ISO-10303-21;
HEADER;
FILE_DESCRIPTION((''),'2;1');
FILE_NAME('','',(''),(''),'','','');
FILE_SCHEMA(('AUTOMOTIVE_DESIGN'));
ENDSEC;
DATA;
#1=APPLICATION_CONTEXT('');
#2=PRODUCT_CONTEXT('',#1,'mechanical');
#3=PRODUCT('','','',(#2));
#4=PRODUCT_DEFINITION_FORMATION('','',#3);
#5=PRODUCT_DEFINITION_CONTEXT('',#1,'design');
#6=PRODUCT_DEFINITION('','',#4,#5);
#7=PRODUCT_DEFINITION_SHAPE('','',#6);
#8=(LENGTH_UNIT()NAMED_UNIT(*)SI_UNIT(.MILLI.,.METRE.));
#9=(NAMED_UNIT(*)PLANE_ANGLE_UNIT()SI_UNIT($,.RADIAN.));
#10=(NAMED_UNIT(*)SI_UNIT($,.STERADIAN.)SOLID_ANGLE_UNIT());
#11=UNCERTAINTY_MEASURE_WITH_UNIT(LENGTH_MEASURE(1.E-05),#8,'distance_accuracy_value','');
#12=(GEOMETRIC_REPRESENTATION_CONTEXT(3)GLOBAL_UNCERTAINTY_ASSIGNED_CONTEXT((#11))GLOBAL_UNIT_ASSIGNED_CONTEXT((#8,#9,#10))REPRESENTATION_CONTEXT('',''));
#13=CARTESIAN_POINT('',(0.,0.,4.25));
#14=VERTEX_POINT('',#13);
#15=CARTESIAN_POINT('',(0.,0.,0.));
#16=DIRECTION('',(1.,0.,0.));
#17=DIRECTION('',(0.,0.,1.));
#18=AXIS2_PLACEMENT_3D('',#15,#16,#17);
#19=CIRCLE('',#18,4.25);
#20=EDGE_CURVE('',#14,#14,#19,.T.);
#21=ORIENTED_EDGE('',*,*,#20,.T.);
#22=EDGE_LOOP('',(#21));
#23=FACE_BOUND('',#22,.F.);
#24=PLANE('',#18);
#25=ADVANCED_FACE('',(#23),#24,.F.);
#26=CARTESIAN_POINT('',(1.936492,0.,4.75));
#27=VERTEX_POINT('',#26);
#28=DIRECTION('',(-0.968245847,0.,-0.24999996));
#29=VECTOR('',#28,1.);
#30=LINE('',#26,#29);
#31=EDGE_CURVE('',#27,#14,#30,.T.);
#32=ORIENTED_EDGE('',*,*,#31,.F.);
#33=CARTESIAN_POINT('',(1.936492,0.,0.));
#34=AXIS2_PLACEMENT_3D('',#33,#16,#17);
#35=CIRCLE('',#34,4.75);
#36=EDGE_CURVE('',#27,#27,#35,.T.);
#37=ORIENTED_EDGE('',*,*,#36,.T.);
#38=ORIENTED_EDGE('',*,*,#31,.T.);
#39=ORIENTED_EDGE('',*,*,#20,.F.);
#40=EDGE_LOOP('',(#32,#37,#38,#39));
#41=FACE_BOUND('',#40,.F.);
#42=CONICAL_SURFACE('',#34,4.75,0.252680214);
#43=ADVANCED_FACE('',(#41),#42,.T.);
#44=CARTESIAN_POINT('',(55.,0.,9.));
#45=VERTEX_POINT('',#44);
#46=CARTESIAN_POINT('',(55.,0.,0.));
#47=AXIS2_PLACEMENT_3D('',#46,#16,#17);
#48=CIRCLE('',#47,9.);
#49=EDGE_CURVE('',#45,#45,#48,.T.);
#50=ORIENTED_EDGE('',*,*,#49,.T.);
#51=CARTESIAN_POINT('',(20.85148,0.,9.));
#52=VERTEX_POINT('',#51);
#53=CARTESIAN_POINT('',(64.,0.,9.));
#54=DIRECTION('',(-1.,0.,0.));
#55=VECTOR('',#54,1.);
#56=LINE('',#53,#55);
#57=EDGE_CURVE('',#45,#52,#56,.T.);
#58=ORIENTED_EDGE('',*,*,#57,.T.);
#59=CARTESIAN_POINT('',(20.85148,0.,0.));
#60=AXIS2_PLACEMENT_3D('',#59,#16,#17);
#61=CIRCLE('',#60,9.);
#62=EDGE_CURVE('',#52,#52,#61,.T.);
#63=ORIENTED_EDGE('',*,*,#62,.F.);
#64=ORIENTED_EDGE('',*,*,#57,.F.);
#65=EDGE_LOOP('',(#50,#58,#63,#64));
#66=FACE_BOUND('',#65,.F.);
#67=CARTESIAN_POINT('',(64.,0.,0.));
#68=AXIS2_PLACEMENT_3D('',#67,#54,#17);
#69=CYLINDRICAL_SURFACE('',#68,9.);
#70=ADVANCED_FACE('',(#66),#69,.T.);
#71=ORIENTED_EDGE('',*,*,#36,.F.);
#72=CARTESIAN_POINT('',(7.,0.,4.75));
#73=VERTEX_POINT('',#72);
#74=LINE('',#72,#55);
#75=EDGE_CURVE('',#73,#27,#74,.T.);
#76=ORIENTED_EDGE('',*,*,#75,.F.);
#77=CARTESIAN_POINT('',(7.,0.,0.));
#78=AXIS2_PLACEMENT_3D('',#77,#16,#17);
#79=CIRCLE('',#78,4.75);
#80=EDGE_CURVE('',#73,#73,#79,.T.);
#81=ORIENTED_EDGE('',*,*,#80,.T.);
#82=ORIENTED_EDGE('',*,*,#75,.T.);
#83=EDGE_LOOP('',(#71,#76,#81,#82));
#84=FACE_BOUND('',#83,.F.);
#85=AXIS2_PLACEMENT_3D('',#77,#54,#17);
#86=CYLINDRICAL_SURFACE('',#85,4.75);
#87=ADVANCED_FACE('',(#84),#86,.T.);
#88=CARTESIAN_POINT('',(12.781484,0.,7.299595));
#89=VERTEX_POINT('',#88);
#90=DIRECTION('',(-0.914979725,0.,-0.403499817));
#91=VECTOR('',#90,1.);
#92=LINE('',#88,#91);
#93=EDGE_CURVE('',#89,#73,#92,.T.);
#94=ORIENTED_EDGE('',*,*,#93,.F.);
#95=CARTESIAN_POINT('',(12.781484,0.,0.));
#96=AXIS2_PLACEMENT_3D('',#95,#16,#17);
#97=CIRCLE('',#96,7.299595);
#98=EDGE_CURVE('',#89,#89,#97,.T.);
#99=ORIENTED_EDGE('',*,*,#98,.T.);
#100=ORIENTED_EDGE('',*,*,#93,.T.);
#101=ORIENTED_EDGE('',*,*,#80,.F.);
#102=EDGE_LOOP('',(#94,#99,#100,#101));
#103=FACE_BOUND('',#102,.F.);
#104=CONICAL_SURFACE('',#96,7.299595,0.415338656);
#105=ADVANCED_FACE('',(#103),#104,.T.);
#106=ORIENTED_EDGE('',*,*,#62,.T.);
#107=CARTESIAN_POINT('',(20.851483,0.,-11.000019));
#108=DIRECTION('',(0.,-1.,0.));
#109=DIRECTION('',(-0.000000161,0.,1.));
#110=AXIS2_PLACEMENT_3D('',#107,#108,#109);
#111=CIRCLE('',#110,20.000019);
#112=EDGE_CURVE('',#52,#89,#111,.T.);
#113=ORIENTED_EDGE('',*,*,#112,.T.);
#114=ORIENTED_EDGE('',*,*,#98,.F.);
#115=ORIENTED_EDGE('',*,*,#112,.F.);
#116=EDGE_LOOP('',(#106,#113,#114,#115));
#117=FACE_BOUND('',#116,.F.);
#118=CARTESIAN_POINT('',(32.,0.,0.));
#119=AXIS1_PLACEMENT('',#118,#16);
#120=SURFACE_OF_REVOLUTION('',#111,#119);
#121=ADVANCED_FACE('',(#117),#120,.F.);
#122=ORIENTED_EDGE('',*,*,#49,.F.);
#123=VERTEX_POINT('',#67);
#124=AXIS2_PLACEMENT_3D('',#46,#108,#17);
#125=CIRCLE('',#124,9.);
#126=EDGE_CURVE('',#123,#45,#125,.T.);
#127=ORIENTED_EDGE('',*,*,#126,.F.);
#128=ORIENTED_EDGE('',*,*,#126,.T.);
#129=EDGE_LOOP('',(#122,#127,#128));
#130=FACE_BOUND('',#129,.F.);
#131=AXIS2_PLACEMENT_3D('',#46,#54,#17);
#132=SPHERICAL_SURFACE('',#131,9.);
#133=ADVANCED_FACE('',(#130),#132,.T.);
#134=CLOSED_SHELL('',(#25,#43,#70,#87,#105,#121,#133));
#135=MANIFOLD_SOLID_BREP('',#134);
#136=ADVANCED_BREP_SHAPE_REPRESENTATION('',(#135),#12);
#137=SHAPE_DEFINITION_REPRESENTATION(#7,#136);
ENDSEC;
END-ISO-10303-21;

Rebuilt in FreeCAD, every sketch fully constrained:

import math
import FreeCAD as App
import Part
import Sketcher
from FreeCAD import Vector
Q = App.Units.Quantity


def edges_at(feature, points):
    """Names of the edges that pass closest to the given points."""
    edges = feature.Shape.Edges
    near = lambda p: min(range(len(edges)), key=lambda i: edges[i].distToShape(Part.Vertex(*p))[0])
    return sorted({f"Edge{near(p) + 1}" for p in points})

doc = App.newDocument("Part")
params = doc.addObject("Spreadsheet::Sheet", "Params")
for row, (alias, value) in enumerate([
    ("sketch1_width", "64 mm"),
    ("sketch1_height", "9 mm"),
    ("sketch1_length", "2 mm"),
    ("sketch1_height2", "4.25 mm"),
    ("sketch1_width2", "8.069999 mm"),
    ("revolution_angle", "360 deg"),
    ("fillet_radius", "9 mm"),
], start=1):
    params.set(f"A{row}", alias)
    params.set(f"B{row}", "=" + value)
    params.setAlias(f"B{row}", alias)

body = doc.addObject("PartDesign::Body", "Body")

# Sketch on XZ plane
sketch1 = body.newObject("Sketcher::SketchObject", "Sketch")
sketch1.AttachmentSupport = (doc.getObject("XZ_Plane"), [""])
sketch1.MapMode = "FlatFace"
sketch1.addGeometry([
    Part.LineSegment(Vector(0, 4.2, 0), Vector(0, 0, 0)),  # 0
    Part.LineSegment(Vector(0, 0, 0), Vector(64, 0, 0)),  # 1
    Part.LineSegment(Vector(64, 0, 0), Vector(64, 9, 0)),  # 2
    Part.LineSegment(Vector(64, 9, 0), Vector(20.9, 9, 0)),  # 3
    Part.ArcOfCircle(Part.Circle(Vector(20.9, -11, 0), Vector(0, 0, 1), 20), math.radians(90), math.radians(114)),  # 4
    Part.LineSegment(Vector(12.8, 7.3, 0), Vector(7, 4.8, 0)),  # 5
    Part.LineSegment(Vector(7, 4.8, 0), Vector(1.9, 4.8, 0)),  # 6
    Part.LineSegment(Vector(1.9, 4.8, 0), Vector(0, 4.2, 0)),  # 7
], False)
sketch1.addConstraint([
    Sketcher.Constraint("Coincident", 0, 2, 1, 1),
    Sketcher.Constraint("Coincident", 1, 2, 2, 1),
    Sketcher.Constraint("Coincident", 2, 2, 3, 1),
    Sketcher.Constraint("Tangent", 3, 2, 4, 1),
    Sketcher.Constraint("Tangent", 4, 2, 5, 1),
    Sketcher.Constraint("Coincident", 5, 2, 6, 1),
    Sketcher.Constraint("Coincident", 6, 2, 7, 1),
    Sketcher.Constraint("Coincident", 7, 2, 0, 1),
    Sketcher.Constraint("Vertical", 0),
    Sketcher.Constraint("Horizontal", 1),
    Sketcher.Constraint("Vertical", 2),
    Sketcher.Constraint("Horizontal", 3),
    Sketcher.Constraint("Horizontal", 6),
    Sketcher.Constraint("Coincident", 0, 2, -1, 1),
    Sketcher.Constraint("DistanceX", 1, 1, 1, 2, Q("64 mm")),
    Sketcher.Constraint("DistanceY", 2, 1, 2, 2, Q("9 mm")),
    Sketcher.Constraint("Distance", 7, Q("2 mm")),
    Sketcher.Constraint("DistanceX", -1, 1, 5, 2, Q("7 mm")),
    Sketcher.Constraint("DistanceY", 0, 2, 0, 1, Q("4.25 mm")),
    Sketcher.Constraint("DistanceY", 7, 2, 6, 2, Q("0.5 mm")),
    Sketcher.Constraint("Radius", 4, Q("20.000019 mm")),
    Sketcher.Constraint("DistanceX", 4, 2, 4, 3, Q("8.069999 mm")),
])
sketch1.setExpression("Constraints[14]", "Params.sketch1_width")
sketch1.setExpression("Constraints[15]", "Params.sketch1_height")
sketch1.setExpression("Constraints[16]", "Params.sketch1_length")
sketch1.setExpression("Constraints[18]", "Params.sketch1_height2")
sketch1.setExpression("Constraints[21]", "Params.sketch1_width2")
revolution = body.newObject("PartDesign::Revolution", "Revolution")
revolution.Profile = sketch1
revolution.ReferenceAxis = (sketch1, ["H_Axis"])
revolution.setExpression("Angle", "Params.revolution_angle")
doc.recompute()

fillet = body.newObject("PartDesign::Fillet", "Fillet")
fillet.Base = (revolution, edges_at(revolution, [(64, 0, -9)]))
fillet.setExpression("Radius", "Params.fillet_radius")

doc.recompute()
